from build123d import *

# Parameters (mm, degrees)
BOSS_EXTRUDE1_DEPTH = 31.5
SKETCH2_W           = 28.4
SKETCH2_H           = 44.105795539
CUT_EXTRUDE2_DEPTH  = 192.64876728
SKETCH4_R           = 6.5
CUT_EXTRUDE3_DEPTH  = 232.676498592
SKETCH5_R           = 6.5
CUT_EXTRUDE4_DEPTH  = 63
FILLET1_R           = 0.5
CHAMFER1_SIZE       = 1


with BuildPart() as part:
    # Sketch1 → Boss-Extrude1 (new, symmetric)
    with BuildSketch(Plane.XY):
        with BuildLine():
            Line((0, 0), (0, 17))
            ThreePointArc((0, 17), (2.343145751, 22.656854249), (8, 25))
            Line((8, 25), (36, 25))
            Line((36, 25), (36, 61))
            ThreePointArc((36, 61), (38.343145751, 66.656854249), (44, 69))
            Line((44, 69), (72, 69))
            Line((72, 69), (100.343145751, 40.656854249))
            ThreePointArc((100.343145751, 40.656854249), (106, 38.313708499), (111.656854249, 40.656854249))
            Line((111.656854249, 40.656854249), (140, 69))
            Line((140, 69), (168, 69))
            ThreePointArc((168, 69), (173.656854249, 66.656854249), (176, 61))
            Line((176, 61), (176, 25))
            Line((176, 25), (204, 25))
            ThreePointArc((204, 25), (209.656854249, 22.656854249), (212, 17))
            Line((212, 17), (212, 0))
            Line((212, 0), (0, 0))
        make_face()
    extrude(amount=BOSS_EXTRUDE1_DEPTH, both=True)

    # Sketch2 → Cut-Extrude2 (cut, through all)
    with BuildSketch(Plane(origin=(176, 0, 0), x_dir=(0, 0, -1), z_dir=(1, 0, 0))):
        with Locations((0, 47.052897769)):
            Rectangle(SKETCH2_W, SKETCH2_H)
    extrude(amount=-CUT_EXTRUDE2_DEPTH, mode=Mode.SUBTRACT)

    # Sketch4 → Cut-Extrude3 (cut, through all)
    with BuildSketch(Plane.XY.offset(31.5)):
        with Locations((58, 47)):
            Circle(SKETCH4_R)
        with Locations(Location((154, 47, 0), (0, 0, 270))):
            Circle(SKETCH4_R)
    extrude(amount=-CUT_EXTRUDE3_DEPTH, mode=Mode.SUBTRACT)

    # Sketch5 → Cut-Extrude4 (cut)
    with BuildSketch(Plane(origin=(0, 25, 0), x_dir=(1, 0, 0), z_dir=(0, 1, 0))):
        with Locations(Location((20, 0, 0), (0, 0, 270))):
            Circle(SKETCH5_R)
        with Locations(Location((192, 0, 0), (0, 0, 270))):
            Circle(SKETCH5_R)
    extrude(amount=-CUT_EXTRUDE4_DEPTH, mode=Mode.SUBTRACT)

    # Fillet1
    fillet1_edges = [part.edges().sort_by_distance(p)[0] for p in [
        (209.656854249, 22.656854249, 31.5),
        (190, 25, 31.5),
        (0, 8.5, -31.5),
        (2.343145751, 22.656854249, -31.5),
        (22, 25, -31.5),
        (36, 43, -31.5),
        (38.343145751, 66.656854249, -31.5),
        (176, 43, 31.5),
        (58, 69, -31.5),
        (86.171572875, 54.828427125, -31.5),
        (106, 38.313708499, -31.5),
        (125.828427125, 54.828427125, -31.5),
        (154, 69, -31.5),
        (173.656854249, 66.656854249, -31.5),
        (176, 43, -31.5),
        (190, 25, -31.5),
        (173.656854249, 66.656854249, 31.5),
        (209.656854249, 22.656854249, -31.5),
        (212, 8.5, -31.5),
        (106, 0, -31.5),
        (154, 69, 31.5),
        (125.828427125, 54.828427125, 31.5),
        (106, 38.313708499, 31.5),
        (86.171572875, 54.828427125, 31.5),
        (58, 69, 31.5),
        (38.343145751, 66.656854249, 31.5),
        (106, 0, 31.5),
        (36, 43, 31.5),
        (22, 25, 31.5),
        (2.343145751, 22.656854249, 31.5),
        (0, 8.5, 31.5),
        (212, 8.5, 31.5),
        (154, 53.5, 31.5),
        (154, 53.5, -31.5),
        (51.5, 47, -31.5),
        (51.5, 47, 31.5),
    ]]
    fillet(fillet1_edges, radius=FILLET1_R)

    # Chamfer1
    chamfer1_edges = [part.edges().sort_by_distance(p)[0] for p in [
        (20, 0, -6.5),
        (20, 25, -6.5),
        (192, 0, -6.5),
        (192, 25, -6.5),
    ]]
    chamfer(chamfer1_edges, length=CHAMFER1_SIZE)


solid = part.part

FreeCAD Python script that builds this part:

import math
import FreeCAD as App
import Part
import Sketcher
from FreeCAD import Vector


def edges_at(feature, points):
    """Names of the edges that pass closest to the given points."""
    edges = feature.Shape.Edges
    near = lambda p: min(range(len(edges)), key=lambda i: edges[i].distToShape(Part.Vertex(*p))[0])
    return sorted({f"Edge{near(p) + 1}" for p in points})


def add_polygon(sketch, points):
    """Adds a closed chain of lines whose ends are joined by coincident constraints."""
    first, n = sketch.GeometryCount, len(points)
    for a, b in zip(points, points[1:] + points[:1]):
        sketch.addGeometry(Part.LineSegment(App.Vector(*a, 0), App.Vector(*b, 0)), False)
    for i in range(n):
        sketch.addConstraint(Sketcher.Constraint("Coincident", first + i, 2, first + (i + 1) % n, 1))

doc = App.newDocument("Part")
body = doc.addObject("PartDesign::Body", "Body")

sketch1 = doc.addObject("Sketcher::SketchObject", "Sketch")
body.addObject(sketch1)
sketch1.AttachmentSupport = (doc.XY_Plane, [""])
sketch1.MapMode = "FlatFace"
sketch1.addGeometry(Part.LineSegment(Vector(0, 17, 0), Vector(0, 0, 0)), False)
sketch1.addGeometry(Part.LineSegment(Vector(0, 0, 0), Vector(212, 0, 0)), False)
sketch1.addGeometry(Part.LineSegment(Vector(212, 0, 0), Vector(212, 17, 0)), False)
sketch1.addGeometry(Part.ArcOfCircle(Part.Circle(Vector(204, 17, 0), Vector(0, 0, 1), 8), math.radians(0), math.radians(90)), False)
sketch1.addGeometry(Part.LineSegment(Vector(204, 25, 0), Vector(176, 25, 0)), False)
sketch1.addGeometry(Part.LineSegment(Vector(176, 25, 0), Vector(176, 61, 0)), False)
sketch1.addGeometry(Part.ArcOfCircle(Part.Circle(Vector(168, 61, 0), Vector(0, 0, 1), 8), math.radians(0), math.radians(90)), False)
sketch1.addGeometry(Part.LineSegment(Vector(168, 69, 0), Vector(140, 69, 0)), False)
sketch1.addGeometry(Part.LineSegment(Vector(140, 69, 0), Vector(111.656854, 40.656854, 0)), False)
sketch1.addGeometry(Part.ArcOfCircle(Part.Circle(Vector(106, 46.313708, 0), Vector(0, 0, 1), 8), math.radians(-135), math.radians(-45)), False)
sketch1.addGeometry(Part.LineSegment(Vector(100.343146, 40.656854, 0), Vector(72, 69, 0)), False)
sketch1.addGeometry(Part.LineSegment(Vector(72, 69, 0), Vector(44, 69, 0)), False)
sketch1.addGeometry(Part.ArcOfCircle(Part.Circle(Vector(44, 61, 0), Vector(0, 0, 1), 8), math.radians(90), math.radians(180)), False)
sketch1.addGeometry(Part.LineSegment(Vector(36, 61, 0), Vector(36, 25, 0)), False)
sketch1.addGeometry(Part.LineSegment(Vector(36, 25, 0), Vector(8, 25, 0)), False)
sketch1.addGeometry(Part.ArcOfCircle(Part.Circle(Vector(8, 17, 0), Vector(0, 0, 1), 8), math.radians(90), math.radians(180)), False)
sketch1.addConstraint(Sketcher.Constraint("Coincident", 0, 2, 1, 1))
sketch1.addConstraint(Sketcher.Constraint("Coincident", 1, 2, 2, 1))
sketch1.addConstraint(Sketcher.Constraint("Tangent", 2, 2, 3, 1))
sketch1.addConstraint(Sketcher.Constraint("Tangent", 3, 2, 4, 1))
sketch1.addConstraint(Sketcher.Constraint("Coincident", 4, 2, 5, 1))
sketch1.addConstraint(Sketcher.Constraint("Tangent", 5, 2, 6, 1))
sketch1.addConstraint(Sketcher.Constraint("Tangent", 6, 2, 7, 1))
sketch1.addConstraint(Sketcher.Constraint("Coincident", 7, 2, 8, 1))
sketch1.addConstraint(Sketcher.Constraint("Tangent", 8, 2, 9, 2))
sketch1.addConstraint(Sketcher.Constraint("Tangent", 9, 1, 10, 1))
sketch1.addConstraint(Sketcher.Constraint("Coincident", 10, 2, 11, 1))
sketch1.addConstraint(Sketcher.Constraint("Tangent", 11, 2, 12, 1))
sketch1.addConstraint(Sketcher.Constraint("Tangent", 12, 2, 13, 1))
sketch1.addConstraint(Sketcher.Constraint("Coincident", 13, 2, 14, 1))
sketch1.addConstraint(Sketcher.Constraint("Tangent", 14, 2, 15, 1))
sketch1.addConstraint(Sketcher.Constraint("Tangent", 15, 2, 0, 1))
sketch1.addConstraint(Sketcher.Constraint("Vertical", 0))
sketch1.addConstraint(Sketcher.Constraint("Horizontal", 1))
sketch1.addConstraint(Sketcher.Constraint("Vertical", 2))
sketch1.addConstraint(Sketcher.Constraint("Horizontal", 4))
sketch1.addConstraint(Sketcher.Constraint("Vertical", 5))
sketch1.addConstraint(Sketcher.Constraint("Horizontal", 7))
sketch1.addConstraint(Sketcher.Constraint("Horizontal", 11))
sketch1.addConstraint(Sketcher.Constraint("Vertical", 13))
sketch1.addConstraint(Sketcher.Constraint("Horizontal", 14))
sketch1.addConstraint(Sketcher.Constraint("Coincident", 0, 2, -1, 1))
sketch1.addConstraint(Sketcher.Constraint("Equal", 3, 6))
sketch1.addConstraint(Sketcher.Constraint("Equal", 6, 9))
sketch1.addConstraint(Sketcher.Constraint("Equal", 9, 12))
sketch1.addConstraint(Sketcher.Constraint("Equal", 12, 15))
sketch1.addConstraint(Sketcher.Constraint("Perpendicular", 8, 10))
sketch1.addConstraint(Sketcher.Constraint("Horizontal", 6, 3, 12, 3))
sketch1.addConstraint(Sketcher.Constraint("Horizontal", 3, 3, 15, 3))
sketch1.addConstraint(Sketcher.Constraint("Horizontal", 8, 2, 9, 1))
sketch1.addConstraint(Sketcher.Constraint("Equal", 4, 7))
sketch1.addConstraint(Sketcher.Constraint("Equal", 7, 11))
sketch1.addConstraint(Sketcher.Constraint("Equal", 11, 14))
sketch1.addConstraint(Sketcher.Constraint("Radius", 3, 8.0))
sketch1.addConstraint(Sketcher.Constraint("DistanceX", 1, 1, 1, 2, 212.0))
sketch1.addConstraint(Sketcher.Constraint("DistanceX", 4, 2, 4, 1, 28.0))
sketch1.addConstraint(Sketcher.Constraint("DistanceY", 0, 2, 0, 1, 17.0))
sketch1.addConstraint(Sketcher.Constraint("DistanceY", 5, 1, 5, 2, 36.0))
pad1 = doc.addObject("PartDesign::Pad", "Pad")
body.addObject(pad1)
pad1.Profile = sketch1
pad1.Length = 63
pad1.Midplane = True

sketch2 = doc.addObject("Sketcher::SketchObject", "Sketch001")
body.addObject(sketch2)
sketch2.AttachmentSupport = (doc.YZ_Plane, [""])
sketch2.MapMode = "FlatFace"
sketch2.AttachmentOffset = App.Placement(Vector(0, 0, 176), App.Rotation())
add_polygon(sketch2, [(69.105796, 14.2), (25, 14.2), (25, -14.2), (69.105796, -14.2)])
sketch2.addConstraint(Sketcher.Constraint("Horizontal", 0))
sketch2.addConstraint(Sketcher.Constraint("Vertical", 1))
sketch2.addConstraint(Sketcher.Constraint("Horizontal", 2))
sketch2.addConstraint(Sketcher.Constraint("Vertical", 3))
sketch2.addConstraint(Sketcher.Constraint("DistanceY", 1, 2, 1, 1, 28.4))
sketch2.addConstraint(Sketcher.Constraint("DistanceX", -1, 1, 0, 2, 25.0))
sketch2.addConstraint(Sketcher.Constraint("DistanceY", -1, 1, 0, 2, 14.2))
sketch2.addConstraint(Sketcher.Constraint("DistanceX", 0, 2, 0, 1, 44.105796))
pocket1 = doc.addObject("PartDesign::Pocket", "Pocket")
body.addObject(pocket1)
pocket1.Profile = sketch2
pocket1.Type = "ThroughAll"

sketch3 = doc.addObject("Sketcher::SketchObject", "Sketch002")
body.addObject(sketch3)
sketch3.AttachmentSupport = (doc.XY_Plane, [""])
sketch3.MapMode = "FlatFace"
sketch3.AttachmentOffset = App.Placement(Vector(0, 0, 31.5), App.Rotation())
sketch3.addGeometry(Part.Circle(Vector(58, 47, 0), Vector(0, 0, 1), 6.5), False)
sketch3.addGeometry(Part.Circle(Vector(154, 47, 0), Vector(0, 0, 1), 6.5), False)
sketch3.addConstraint(Sketcher.Constraint("Equal", 0, 1))
sketch3.addConstraint(Sketcher.Constraint("Horizontal", 0, 3, 1, 3))
sketch3.addConstraint(Sketcher.Constraint("Diameter", 0, 13.0))
sketch3.addConstraint(Sketcher.Constraint("DistanceX", -1, 1, 0, 3, 58.0))
sketch3.addConstraint(Sketcher.Constraint("DistanceY", -1, 1, 0, 3, 47.0))
sketch3.addConstraint(Sketcher.Constraint("DistanceX", -1, 1, 1, 3, 154.0))
pocket2 = doc.addObject("PartDesign::Pocket", "Pocket001")
body.addObject(pocket2)
pocket2.Profile = sketch3
pocket2.Type = "ThroughAll"

sketch4 = doc.addObject("Sketcher::SketchObject", "Sketch003")
body.addObject(sketch4)
sketch4.AttachmentSupport = (doc.XZ_Plane, [""])
sketch4.MapMode = "FlatFace"
sketch4.AttachmentOffset = App.Placement(Vector(0, 0, -25), App.Rotation())
sketch4.addGeometry(Part.Circle(Vector(20, 0, 0), Vector(0, 0, 1), 6.5), False)
sketch4.addGeometry(Part.Circle(Vector(192, 0, 0), Vector(0, 0, 1), 6.5), False)
sketch4.addConstraint(Sketcher.Constraint("Equal", 0, 1))
sketch4.addConstraint(Sketcher.Constraint("PointOnObject", 0, 3, -1))
sketch4.addConstraint(Sketcher.Constraint("PointOnObject", 1, 3, -1))
sketch4.addConstraint(Sketcher.Constraint("Diameter", 0, 13.0))
sketch4.addConstraint(Sketcher.Constraint("DistanceX", -1, 1, 0, 3, 20.0))
sketch4.addConstraint(Sketcher.Constraint("DistanceX", -1, 1, 1, 3, 192.0))
pocket3 = doc.addObject("PartDesign::Pocket", "Pocket002")
body.addObject(pocket3)
pocket3.Profile = sketch4
pocket3.Length = 63
pocket3.Reversed = True
doc.recompute()

fillet = doc.addObject("PartDesign::Fillet", "Fillet")
body.addObject(fillet)
fillet.Base = (pocket3, edges_at(pocket3, [
    (209.657, 22.657, 31.5),
    (190, 25, 31.5),
    (0, 8.5, -31.5),
    (2.343, 22.657, -31.5),
    (22, 25, -31.5),
    (36, 43, -31.5),
    (38.343, 66.657, -31.5),
    (176, 43, 31.5),
    (58, 69, -31.5),
    (86.172, 54.828, -31.5),
    (106, 38.314, -31.5),
    (125.828, 54.828, -31.5),
    (154, 69, -31.5),
    (173.657, 66.657, -31.5),
    (176, 43, -31.5),
    (190, 25, -31.5),
    (173.657, 66.657, 31.5),
    (209.657, 22.657, -31.5),
    (212, 8.5, -31.5),
    (106, 0, -31.5),
    (154, 69, 31.5),
    (125.828, 54.828, 31.5),
    (106, 38.314, 31.5),
    (86.172, 54.828, 31.5),
    (58, 69, 31.5),
    (38.343, 66.657, 31.5),
    (106, 0, 31.5),
    (36, 43, 31.5),
    (22, 25, 31.5),
    (2.343, 22.657, 31.5),
    (0, 8.5, 31.5),
    (212, 8.5, 31.5),
    (154, 53.5, 31.5),
    (154, 53.5, -31.5),
    (51.5, 47, -31.5),
    (51.5, 47, 31.5),
]))
fillet.Radius = 0.5
doc.recompute()

chamfer = doc.addObject("PartDesign::Chamfer", "Chamfer")
body.addObject(chamfer)
chamfer.Base = (fillet, edges_at(fillet, [
    (20, 0, -6.5),
    (20, 25, -6.5),
    (192, 0, -6.5),
    (192, 25, -6.5),
]))
chamfer.Size = 1

doc.recompute()
